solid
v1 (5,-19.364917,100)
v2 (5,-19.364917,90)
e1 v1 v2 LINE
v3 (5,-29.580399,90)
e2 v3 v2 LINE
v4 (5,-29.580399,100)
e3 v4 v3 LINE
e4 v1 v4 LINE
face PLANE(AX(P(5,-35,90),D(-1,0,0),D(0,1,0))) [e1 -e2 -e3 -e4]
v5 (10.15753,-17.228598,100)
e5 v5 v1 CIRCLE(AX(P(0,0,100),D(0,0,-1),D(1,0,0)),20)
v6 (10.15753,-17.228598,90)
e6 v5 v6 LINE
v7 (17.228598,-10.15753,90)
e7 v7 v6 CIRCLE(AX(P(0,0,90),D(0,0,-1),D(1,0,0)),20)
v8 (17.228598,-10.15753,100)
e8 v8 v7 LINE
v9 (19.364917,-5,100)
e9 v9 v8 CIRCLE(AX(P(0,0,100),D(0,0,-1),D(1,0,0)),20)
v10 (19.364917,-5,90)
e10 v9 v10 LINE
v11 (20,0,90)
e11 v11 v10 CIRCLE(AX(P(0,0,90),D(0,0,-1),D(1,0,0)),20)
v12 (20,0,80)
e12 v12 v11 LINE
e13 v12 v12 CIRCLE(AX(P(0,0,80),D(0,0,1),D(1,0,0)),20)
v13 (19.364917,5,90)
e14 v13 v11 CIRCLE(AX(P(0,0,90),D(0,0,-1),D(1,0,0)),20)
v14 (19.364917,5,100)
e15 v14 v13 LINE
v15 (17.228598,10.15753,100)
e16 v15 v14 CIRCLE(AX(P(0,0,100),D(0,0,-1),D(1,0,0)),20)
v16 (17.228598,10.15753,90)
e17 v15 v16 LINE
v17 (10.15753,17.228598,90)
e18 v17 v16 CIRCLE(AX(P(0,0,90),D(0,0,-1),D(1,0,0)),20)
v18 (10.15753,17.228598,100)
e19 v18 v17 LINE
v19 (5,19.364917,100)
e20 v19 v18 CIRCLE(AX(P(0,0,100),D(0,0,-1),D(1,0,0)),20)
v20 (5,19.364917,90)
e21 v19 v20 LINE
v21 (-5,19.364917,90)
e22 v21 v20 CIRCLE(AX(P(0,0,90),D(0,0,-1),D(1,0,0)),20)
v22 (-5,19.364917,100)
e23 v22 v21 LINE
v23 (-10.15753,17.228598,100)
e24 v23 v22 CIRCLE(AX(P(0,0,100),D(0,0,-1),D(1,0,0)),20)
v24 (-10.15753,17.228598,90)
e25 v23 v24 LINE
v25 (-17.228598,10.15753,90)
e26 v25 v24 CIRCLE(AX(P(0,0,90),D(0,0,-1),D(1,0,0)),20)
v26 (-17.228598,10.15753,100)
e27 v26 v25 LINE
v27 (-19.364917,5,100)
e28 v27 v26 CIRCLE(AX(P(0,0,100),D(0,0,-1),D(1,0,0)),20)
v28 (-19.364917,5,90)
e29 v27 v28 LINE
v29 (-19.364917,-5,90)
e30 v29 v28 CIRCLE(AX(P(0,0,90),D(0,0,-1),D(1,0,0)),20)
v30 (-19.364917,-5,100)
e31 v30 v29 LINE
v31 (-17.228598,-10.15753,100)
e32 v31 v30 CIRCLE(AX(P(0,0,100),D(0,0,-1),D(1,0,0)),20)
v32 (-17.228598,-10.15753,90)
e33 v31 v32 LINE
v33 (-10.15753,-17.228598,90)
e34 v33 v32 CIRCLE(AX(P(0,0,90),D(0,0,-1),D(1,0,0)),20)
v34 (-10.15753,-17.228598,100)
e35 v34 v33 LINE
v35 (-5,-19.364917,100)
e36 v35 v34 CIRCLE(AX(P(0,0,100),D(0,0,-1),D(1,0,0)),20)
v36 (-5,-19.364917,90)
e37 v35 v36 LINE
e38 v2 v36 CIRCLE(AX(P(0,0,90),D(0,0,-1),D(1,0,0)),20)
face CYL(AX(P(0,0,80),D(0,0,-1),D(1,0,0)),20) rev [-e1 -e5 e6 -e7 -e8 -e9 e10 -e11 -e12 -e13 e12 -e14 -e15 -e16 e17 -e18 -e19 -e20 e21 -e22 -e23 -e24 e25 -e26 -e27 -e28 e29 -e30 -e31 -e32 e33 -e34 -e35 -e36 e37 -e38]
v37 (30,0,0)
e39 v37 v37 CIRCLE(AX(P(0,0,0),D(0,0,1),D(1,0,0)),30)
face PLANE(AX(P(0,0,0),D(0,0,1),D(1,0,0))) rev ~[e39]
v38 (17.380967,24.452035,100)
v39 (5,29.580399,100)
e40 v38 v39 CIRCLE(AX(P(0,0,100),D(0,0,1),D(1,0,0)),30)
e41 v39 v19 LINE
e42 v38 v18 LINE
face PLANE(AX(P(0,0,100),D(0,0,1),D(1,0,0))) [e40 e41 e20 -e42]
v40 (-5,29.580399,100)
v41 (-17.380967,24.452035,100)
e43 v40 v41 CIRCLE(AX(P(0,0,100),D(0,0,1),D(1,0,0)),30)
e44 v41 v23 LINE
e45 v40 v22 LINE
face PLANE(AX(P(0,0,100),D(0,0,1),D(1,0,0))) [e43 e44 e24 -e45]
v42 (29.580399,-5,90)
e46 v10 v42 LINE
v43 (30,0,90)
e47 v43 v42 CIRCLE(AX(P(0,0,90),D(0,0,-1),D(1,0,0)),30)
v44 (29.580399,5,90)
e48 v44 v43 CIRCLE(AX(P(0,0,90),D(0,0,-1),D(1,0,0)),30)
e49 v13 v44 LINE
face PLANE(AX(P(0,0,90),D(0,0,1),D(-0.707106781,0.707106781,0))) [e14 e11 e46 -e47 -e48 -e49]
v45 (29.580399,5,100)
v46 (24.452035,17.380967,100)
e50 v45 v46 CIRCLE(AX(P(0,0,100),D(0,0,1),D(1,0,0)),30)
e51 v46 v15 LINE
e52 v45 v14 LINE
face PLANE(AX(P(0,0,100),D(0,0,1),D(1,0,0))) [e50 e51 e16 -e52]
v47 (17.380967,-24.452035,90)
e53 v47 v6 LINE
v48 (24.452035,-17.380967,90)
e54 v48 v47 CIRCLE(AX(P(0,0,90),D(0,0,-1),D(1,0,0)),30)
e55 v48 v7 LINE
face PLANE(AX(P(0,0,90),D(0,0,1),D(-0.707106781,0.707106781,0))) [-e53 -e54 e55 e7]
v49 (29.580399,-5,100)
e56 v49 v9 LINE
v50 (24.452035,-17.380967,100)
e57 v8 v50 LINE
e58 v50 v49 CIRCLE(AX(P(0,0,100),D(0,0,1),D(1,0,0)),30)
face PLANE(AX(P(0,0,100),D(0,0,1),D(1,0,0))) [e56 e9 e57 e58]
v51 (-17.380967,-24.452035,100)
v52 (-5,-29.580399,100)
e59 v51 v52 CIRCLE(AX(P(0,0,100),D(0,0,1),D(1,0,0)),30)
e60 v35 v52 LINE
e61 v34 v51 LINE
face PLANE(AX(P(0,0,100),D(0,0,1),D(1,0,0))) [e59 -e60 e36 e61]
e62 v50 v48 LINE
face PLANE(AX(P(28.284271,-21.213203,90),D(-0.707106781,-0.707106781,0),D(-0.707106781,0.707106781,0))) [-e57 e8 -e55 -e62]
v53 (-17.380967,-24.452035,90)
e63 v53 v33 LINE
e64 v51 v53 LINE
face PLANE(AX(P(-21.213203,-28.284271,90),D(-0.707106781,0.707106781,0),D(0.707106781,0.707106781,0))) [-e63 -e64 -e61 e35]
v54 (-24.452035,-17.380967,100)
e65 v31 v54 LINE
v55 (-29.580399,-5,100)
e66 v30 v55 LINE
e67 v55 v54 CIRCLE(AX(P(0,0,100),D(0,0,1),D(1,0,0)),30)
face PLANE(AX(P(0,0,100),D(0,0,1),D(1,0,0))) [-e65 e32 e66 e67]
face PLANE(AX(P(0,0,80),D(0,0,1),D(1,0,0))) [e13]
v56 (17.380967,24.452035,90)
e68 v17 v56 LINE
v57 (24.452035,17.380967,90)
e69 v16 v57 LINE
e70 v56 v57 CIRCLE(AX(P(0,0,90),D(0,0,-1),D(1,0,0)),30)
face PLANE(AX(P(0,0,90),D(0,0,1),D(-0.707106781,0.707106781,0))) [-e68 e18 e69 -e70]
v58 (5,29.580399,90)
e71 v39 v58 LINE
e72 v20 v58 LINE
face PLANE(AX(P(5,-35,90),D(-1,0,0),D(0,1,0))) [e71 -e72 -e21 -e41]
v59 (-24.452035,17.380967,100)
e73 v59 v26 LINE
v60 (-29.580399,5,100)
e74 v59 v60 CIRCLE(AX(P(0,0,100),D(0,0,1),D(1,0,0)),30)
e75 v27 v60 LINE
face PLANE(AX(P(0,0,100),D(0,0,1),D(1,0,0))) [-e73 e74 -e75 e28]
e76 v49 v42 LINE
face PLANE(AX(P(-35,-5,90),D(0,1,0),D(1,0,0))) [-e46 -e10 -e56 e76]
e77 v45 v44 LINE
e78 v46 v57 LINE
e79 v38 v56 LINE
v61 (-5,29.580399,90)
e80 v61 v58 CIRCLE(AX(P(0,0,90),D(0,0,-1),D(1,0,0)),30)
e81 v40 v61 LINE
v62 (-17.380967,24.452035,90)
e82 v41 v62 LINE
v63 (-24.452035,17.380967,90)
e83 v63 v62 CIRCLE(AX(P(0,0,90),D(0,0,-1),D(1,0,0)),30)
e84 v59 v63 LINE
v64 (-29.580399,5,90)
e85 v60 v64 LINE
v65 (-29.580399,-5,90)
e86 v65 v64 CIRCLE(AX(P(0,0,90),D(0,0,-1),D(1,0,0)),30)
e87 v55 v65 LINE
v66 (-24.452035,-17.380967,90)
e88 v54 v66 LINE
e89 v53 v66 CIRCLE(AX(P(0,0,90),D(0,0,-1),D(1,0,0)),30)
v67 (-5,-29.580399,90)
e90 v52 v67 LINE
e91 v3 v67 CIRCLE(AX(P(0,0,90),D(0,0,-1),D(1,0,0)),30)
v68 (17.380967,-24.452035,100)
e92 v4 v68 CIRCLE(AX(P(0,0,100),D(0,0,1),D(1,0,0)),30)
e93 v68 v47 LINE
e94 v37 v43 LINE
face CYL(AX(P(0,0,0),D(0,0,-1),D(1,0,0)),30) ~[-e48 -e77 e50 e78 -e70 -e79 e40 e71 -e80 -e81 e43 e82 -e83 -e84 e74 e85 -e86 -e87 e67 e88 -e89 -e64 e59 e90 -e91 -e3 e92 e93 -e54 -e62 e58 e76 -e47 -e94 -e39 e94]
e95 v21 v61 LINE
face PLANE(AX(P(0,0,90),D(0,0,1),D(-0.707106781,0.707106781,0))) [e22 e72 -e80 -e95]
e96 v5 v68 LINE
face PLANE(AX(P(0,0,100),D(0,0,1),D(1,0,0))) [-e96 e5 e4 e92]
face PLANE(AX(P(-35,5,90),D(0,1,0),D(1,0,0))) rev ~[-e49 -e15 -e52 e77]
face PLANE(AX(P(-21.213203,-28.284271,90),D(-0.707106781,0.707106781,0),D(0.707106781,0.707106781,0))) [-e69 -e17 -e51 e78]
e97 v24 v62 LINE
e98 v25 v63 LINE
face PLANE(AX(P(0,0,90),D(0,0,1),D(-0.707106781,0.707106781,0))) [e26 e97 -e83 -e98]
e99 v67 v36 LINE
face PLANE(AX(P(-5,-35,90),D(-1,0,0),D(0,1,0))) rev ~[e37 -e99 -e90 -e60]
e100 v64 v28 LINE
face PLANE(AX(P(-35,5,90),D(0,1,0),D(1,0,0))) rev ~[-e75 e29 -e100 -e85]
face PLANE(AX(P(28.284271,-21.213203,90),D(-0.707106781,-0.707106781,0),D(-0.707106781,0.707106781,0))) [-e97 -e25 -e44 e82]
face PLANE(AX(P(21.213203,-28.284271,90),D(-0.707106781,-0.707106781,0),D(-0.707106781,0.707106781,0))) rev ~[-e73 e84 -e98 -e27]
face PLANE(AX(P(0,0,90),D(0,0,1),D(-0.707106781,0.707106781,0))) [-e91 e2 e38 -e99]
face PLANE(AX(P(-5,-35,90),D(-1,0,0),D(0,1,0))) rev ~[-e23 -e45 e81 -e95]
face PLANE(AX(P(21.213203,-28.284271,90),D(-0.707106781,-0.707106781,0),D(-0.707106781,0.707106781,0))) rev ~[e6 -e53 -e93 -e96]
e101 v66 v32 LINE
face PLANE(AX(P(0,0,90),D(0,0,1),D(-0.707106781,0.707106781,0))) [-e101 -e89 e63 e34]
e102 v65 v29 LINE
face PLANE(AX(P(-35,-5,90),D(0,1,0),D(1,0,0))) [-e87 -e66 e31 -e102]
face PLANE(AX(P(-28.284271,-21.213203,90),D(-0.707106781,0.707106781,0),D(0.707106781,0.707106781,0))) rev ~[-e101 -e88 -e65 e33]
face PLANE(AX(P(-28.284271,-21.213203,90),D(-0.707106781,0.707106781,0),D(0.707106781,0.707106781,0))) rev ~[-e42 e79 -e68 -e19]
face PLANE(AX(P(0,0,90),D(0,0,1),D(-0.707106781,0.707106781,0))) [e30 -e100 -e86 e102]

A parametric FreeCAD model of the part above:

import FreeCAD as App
import Part
import Sketcher


def add_polygon(sketch, points):
    """Adds a closed chain of lines whose ends are joined by coincident constraints."""
    first, n = sketch.GeometryCount, len(points)
    for a, b in zip(points, points[1:] + points[:1]):
        sketch.addGeometry(Part.LineSegment(App.Vector(*a, 0), App.Vector(*b, 0)), False)
    for i in range(n):
        sketch.addConstraint(Sketcher.Constraint("Coincident", first + i, 2, first + (i + 1) % n, 1))

doc = App.newDocument("Part")
params = doc.addObject("Spreadsheet::Sheet", "Params")
for row, (alias, value) in enumerate([
    ("sketch1_width", "70 mm"),
    ("sketch1_height", "10 mm"),
    ("pad1_length", "11 mm"),
    ("sketch2_diameter", "40 mm"),
    ("pad2_length", "30 mm"),
    ("sketch3_diameter", "60 mm"),
    ("pad3_length", "100 mm"),
], start=1):
    params.set(f"A{row}", alias)
    params.set(f"B{row}", "=" + value)
    params.setAlias(f"B{row}", alias)

body = doc.addObject("PartDesign::Body", "Body")

# Sketch on XY plane
sketch1 = body.newObject("Sketcher::SketchObject", "Sketch")
sketch1.AttachmentSupport = (doc.getObject("XY_Plane"), [""])
sketch1.MapMode = "FlatFace"
sketch1.AttachmentOffset = App.Placement(App.Vector(0, 0, 90), App.Rotation())
add_polygon(sketch1, [(-35, 5), (-35, -5), (35, -5), (35, 5)])  # lines 0-3
sketch1.addConstraint([
    Sketcher.Constraint("Vertical", 0),
    Sketcher.Constraint("Horizontal", 1),
    Sketcher.Constraint("Vertical", 2),
    Sketcher.Constraint("Horizontal", 3),
    Sketcher.Constraint("Symmetric", 0, 2, 2, 2, -1, 1),
    Sketcher.Constraint("DistanceX", 1, 1, 1, 2, 70.0),
    Sketcher.Constraint("DistanceY", 0, 2, 0, 1, 10.0),
])
sketch1.setExpression("Constraints[9]", "Params.sketch1_width")
sketch1.setExpression("Constraints[10]", "Params.sketch1_height")
pad1 = body.newObject("PartDesign::Pad", "Pad")
pad1.Profile = sketch1
pad1.setExpression("Length", "Params.pad1_length")
body2 = doc.addObject("PartDesign::Body", "Body001")
doc.recompute()

body2.BaseFeature = body
doc.recompute()

body3 = doc.addObject("PartDesign::Body", "Body002")
body3.BaseFeature = body
body3.Placement = App.Placement(App.Vector(0, 0, 0), App.Rotation(App.Vector(0, 0, 1), 45))
boolean = body2.newObject("PartDesign::Boolean", "Boolean")
boolean.Type = "Fuse"
boolean.addObjects([body3])
doc.recompute()

body4 = doc.addObject("PartDesign::Body", "Body003")
body4.BaseFeature = body
body4.Placement = App.Placement(App.Vector(0, 0, 0), App.Rotation(App.Vector(0, 0, 1), 90))
boolean2 = body2.newObject("PartDesign::Boolean", "Boolean001")
boolean2.Type = "Fuse"
boolean2.addObjects([body4])
doc.recompute()

body5 = doc.addObject("PartDesign::Body", "Body004")
body5.BaseFeature = body
body5.Placement = App.Placement(App.Vector(0, 0, 0), App.Rotation(App.Vector(0, 0, 1), 135))
boolean3 = body2.newObject("PartDesign::Boolean", "Boolean002")
boolean3.Type = "Fuse"
boolean3.addObjects([body5])
doc.recompute()

body6 = doc.addObject("PartDesign::Body", "Body005")
body6.BaseFeature = body
body6.Placement = App.Placement(App.Vector(0, 0, 0), App.Rotation(App.Vector(0, 0, 1), 180))
boolean4 = body2.newObject("PartDesign::Boolean", "Boolean003")
boolean4.Type = "Fuse"
boolean4.addObjects([body6])
doc.recompute()

body7 = doc.addObject("PartDesign::Body", "Body006")
body7.BaseFeature = body
body7.Placement = App.Placement(App.Vector(0, 0, 0), App.Rotation(App.Vector(0, 0, 1), 225))
boolean5 = body2.newObject("PartDesign::Boolean", "Boolean004")
boolean5.Type = "Fuse"
boolean5.addObjects([body7])
doc.recompute()

body8 = doc.addObject("PartDesign::Body", "Body007")
body8.BaseFeature = body
body8.Placement = App.Placement(App.Vector(0, 0, 0), App.Rotation(App.Vector(0, 0, 1), 270))
boolean6 = body2.newObject("PartDesign::Boolean", "Boolean005")
boolean6.Type = "Fuse"
boolean6.addObjects([body8])
doc.recompute()

body.Placement = App.Placement(App.Vector(0, 0, 0), App.Rotation(App.Vector(0, 0, 1), 315))
boolean7 = body2.newObject("PartDesign::Boolean", "Boolean006")
boolean7.Type = "Fuse"
boolean7.addObjects([body])
body9 = doc.addObject("PartDesign::Body", "Body008")

# Sketch on XY plane
sketch2 = body9.newObject("Sketcher::SketchObject", "Sketch001")
sketch2.AttachmentSupport = (doc.getObject("XY_Plane008"), [""])
sketch2.MapMode = "FlatFace"
sketch2.AttachmentOffset = App.Placement(App.Vector(0, 0, 80), App.Rotation())
sketch2.addGeometry(Part.Circle(App.Vector(0, 0, 0), App.Vector(0, 0, 1), 20), False)
sketch2.addConstraint([
    Sketcher.Constraint("Coincident", 0, 3, -1, 1),
    Sketcher.Constraint("Diameter", 0, 40.0),
])
sketch2.setExpression("Constraints[1]", "Params.sketch2_diameter")
pad2 = body9.newObject("PartDesign::Pad", "Pad001")
pad2.Profile = sketch2
pad2.setExpression("Length", "Params.pad2_length")
body10 = doc.addObject("PartDesign::Body", "Body009")

# Sketch on XY plane
sketch3 = body10.newObject("Sketcher::SketchObject", "Sketch002")
sketch3.AttachmentSupport = (doc.getObject("XY_Plane009"), [""])
sketch3.MapMode = "FlatFace"
sketch3.addGeometry(Part.Circle(App.Vector(0, 0, 0), App.Vector(0, 0, 1), 30), False)
sketch3.addConstraint([
    Sketcher.Constraint("Coincident", 0, 3, -1, 1),
    Sketcher.Constraint("Diameter", 0, 60.0),
])
sketch3.setExpression("Constraints[1]", "Params.sketch3_diameter")
pad3 = body10.newObject("PartDesign::Pad", "Pad002")
pad3.Profile = sketch3
pad3.setExpression("Length", "Params.pad3_length")
doc.recompute()

boolean8 = body10.newObject("PartDesign::Boolean", "Boolean007")
boolean8.Type = "Cut"
boolean8.addObjects([body9])
doc.recompute()

boolean9 = body10.newObject("PartDesign::Boolean", "Boolean008")
boolean9.Type = "Cut"
boolean9.addObjects([body2])

doc.recompute()
